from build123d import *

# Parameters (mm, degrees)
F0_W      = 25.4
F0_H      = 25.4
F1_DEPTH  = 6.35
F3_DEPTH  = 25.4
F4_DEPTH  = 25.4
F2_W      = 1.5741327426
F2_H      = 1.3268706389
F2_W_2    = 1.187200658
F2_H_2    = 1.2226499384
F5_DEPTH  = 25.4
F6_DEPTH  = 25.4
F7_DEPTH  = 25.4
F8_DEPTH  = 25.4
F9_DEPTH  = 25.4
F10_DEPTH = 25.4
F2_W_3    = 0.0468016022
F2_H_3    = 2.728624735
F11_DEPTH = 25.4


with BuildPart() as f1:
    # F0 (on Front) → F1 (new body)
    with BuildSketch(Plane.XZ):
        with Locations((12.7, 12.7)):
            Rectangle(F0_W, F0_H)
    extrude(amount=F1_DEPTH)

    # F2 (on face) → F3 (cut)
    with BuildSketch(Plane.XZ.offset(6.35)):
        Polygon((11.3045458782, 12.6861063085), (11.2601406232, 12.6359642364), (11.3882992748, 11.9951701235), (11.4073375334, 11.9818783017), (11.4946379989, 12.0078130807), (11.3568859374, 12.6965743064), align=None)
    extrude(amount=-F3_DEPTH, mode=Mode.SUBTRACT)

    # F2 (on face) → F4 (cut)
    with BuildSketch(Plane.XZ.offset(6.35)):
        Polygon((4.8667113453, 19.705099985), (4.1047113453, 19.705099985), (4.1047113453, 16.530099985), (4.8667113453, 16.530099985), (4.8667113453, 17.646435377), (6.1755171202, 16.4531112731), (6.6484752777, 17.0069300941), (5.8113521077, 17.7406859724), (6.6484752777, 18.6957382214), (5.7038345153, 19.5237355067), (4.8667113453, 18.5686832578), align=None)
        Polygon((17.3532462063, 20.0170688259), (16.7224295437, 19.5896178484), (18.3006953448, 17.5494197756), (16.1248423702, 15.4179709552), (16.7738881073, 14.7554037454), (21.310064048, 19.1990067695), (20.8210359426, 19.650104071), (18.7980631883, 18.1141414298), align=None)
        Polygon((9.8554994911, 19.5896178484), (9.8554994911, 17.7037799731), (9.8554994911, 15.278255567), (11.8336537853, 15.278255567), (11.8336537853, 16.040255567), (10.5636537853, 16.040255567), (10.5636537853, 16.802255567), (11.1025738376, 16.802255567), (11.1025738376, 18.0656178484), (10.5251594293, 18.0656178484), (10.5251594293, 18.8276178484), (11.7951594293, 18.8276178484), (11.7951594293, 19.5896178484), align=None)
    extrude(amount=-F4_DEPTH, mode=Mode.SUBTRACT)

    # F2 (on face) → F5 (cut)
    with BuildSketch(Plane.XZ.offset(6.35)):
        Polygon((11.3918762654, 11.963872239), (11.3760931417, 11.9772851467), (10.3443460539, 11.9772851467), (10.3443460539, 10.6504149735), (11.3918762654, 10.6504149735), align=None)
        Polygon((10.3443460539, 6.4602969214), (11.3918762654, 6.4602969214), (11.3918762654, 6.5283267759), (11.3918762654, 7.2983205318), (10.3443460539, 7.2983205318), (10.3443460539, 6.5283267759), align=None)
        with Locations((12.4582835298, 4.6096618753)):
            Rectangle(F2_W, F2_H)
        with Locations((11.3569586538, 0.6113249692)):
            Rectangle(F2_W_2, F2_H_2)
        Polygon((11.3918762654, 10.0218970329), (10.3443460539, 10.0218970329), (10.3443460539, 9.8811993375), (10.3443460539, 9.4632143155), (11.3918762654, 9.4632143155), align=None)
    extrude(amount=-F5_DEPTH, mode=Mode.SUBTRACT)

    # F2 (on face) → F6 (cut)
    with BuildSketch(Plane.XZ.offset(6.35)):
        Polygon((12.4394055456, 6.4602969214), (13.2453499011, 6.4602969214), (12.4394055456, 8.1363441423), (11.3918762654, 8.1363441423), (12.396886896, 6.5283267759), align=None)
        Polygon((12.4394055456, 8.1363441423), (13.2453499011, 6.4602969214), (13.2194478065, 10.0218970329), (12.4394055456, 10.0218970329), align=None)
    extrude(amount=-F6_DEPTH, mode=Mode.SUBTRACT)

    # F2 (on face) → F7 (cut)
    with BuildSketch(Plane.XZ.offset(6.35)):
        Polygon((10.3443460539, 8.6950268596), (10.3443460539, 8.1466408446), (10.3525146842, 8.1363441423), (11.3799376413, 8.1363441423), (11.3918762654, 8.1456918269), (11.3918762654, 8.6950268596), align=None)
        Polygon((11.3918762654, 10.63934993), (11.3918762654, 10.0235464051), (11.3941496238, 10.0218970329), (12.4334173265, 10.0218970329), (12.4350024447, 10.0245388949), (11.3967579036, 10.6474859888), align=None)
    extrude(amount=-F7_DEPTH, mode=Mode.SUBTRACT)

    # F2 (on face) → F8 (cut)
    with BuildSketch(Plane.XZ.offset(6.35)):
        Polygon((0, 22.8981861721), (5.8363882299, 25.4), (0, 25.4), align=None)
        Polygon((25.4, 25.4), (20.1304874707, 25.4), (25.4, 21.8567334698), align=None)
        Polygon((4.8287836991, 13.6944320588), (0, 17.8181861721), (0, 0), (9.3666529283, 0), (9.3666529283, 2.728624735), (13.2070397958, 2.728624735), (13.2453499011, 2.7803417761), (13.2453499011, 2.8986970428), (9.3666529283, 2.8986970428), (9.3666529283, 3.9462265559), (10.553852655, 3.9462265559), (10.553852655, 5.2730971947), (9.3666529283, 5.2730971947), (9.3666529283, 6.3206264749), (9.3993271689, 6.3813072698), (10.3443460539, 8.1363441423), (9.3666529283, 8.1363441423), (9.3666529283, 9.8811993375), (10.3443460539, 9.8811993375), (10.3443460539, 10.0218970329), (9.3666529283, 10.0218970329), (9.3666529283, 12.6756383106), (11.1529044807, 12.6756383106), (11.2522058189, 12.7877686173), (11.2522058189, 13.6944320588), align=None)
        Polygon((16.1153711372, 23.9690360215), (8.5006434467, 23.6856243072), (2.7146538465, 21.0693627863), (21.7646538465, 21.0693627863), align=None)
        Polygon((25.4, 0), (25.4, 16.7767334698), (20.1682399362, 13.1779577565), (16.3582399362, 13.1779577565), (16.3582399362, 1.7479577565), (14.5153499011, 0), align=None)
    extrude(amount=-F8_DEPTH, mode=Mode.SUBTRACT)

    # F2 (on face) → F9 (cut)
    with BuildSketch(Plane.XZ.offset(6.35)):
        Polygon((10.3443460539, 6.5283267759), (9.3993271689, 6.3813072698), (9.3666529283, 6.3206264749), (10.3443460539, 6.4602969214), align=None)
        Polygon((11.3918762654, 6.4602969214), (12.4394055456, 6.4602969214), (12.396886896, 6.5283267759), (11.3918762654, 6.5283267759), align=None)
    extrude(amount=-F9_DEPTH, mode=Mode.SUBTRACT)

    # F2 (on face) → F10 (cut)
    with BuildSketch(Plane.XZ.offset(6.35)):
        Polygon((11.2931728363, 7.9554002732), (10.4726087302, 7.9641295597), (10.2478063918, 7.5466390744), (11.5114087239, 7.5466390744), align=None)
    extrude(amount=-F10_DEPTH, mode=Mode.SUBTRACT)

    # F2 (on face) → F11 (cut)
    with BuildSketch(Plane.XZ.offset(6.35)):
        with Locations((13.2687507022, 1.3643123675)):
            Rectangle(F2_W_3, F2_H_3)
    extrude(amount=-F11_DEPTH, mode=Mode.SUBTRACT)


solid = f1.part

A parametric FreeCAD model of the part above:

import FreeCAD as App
import Part
import Sketcher

V = App.Vector
Q = App.Units.Quantity

doc = App.newDocument("Part")
params = doc.addObject("Spreadsheet::Sheet", "Params")
for row, (alias, value) in enumerate([
    ("sketch1_width", "1 in"),
    ("pad1_length", "0.25 in"),
    ("pocket1_length", "1 in"),
    ("sketch3_length", "0.1 in"),
    ("sketch3_width", "0.03 in"),
    ("sketch3_width2", "0.03 in"),
    ("sketch3_width3", "0.05 in"),
    ("sketch3_width4", "0.05 in"),
    ("pocket2_length", "1 in"),
    ("pocket3_length", "1 in"),
    ("pocket4_length", "1 in"),
    ("pocket5_length", "1 in"),
    ("sketch7_length", "0.3 in"),
    ("sketch7_length2", "0.1 in"),
    ("sketch7_width", "0.75 in"),
    ("sketch7_width2", "0.15 in"),
    ("sketch7_height", "0.45 in"),
    ("pocket6_length", "1 in"),
    ("pocket7_length", "1 in"),
    ("pocket8_length", "1 in"),
    ("pocket9_length", "1 in"),
], start=1):
    params.set(f"A{row}", alias)
    params.set(f"B{row}", "=" + value)
    params.setAlias(f"B{row}", alias)

body = doc.addObject("PartDesign::Body", "Body")

sketch1 = body.newObject("Sketcher::SketchObject", "Sketch")
sketch1.AttachmentSupport = (doc.getObject("XZ_Plane"), [""])
sketch1.MapMode = "FlatFace"
sketch1.addGeometry([
    Part.LineSegment(V(0, 25, 0), V(0, 0, 0)),
    Part.LineSegment(V(0, 0, 0), V(25, 0, 0)),
    Part.LineSegment(V(25, 0, 0), V(25, 25, 0)),
    Part.LineSegment(V(25, 25, 0), V(0, 25, 0)),
], False)
sketch1.addConstraint([
    Sketcher.Constraint("Coincident", 0, 2, 1, 1),
    Sketcher.Constraint("Coincident", 1, 2, 2, 1),
    Sketcher.Constraint("Coincident", 2, 2, 3, 1),
    Sketcher.Constraint("Coincident", 3, 2, 0, 1),
    Sketcher.Constraint("Vertical", 0),
    Sketcher.Constraint("Horizontal", 1),
    Sketcher.Constraint("Vertical", 2),
    Sketcher.Constraint("Horizontal", 3),
    Sketcher.Constraint("Coincident", 0, 2, -1, 1),
    Sketcher.Constraint("Equal", 3, 0),
    Sketcher.Constraint("DistanceX", 1, 1, 1, 2, Q("1 in")),
])
sketch1.setExpression("Constraints[10]", "Params.sketch1_width")
pad1 = body.newObject("PartDesign::Pad", "Pad")
pad1.Profile = sketch1
pad1.setExpression("Length", "Params.pad1_length")

sketch2 = body.newObject("Sketcher::SketchObject", "Sketch001")
sketch2.AttachmentSupport = (doc.getObject("XZ_Plane"), [""])
sketch2.MapMode = "FlatFace"
sketch2.AttachmentOffset = App.Placement(V(0, 0, 0.25 * 25.4), App.Rotation())
sketch2.addGeometry([
    Part.LineSegment(V(11.305, 12.686, 0), V(11.26, 12.636, 0)),
    Part.LineSegment(V(11.26, 12.636, 0), V(11.388, 11.995, 0)),
    Part.LineSegment(V(11.388, 11.995, 0), V(11.407, 11.982, 0)),
    Part.LineSegment(V(11.407, 11.982, 0), V(11.495, 12.008, 0)),
    Part.LineSegment(V(11.495, 12.008, 0), V(11.357, 12.697, 0)),
    Part.LineSegment(V(11.357, 12.697, 0), V(11.305, 12.686, 0)),
], False)
sketch2.addConstraint([
    Sketcher.Constraint("Coincident", 0, 2, 1, 1),
    Sketcher.Constraint("Coincident", 1, 2, 2, 1),
    Sketcher.Constraint("Coincident", 2, 2, 3, 1),
    Sketcher.Constraint("Coincident", 3, 2, 4, 1),
    Sketcher.Constraint("Coincident", 4, 2, 5, 1),
    Sketcher.Constraint("Coincident", 5, 2, 0, 1),
    Sketcher.Constraint("Parallel", 1, 4),
    Sketcher.Constraint("Perpendicular", 4, 5),
    Sketcher.Constraint("Distance", 4, Q("0.702401 mm")),
    Sketcher.Constraint("DistanceX", -1, 1, 1, 2, Q("11.388299 mm")),
    Sketcher.Constraint("DistanceX", 2, 2, 3, 2, Q("0.0873 mm")),
    Sketcher.Constraint("Distance", 0, Q("0.066978 mm")),
    Sketcher.Constraint("Distance", 2, Q("0.023219 mm")),
    Sketcher.Constraint("Distance", 3, Q("0.091071 mm")),
    Sketcher.Constraint("DistanceX", -1, 1, 0, 2, Q("11.260141 mm")),
    Sketcher.Constraint("DistanceY", -1, 1, 1, 2, Q("11.99517 mm")),
    Sketcher.Constraint("DistanceY", -1, 1, 2, 2, Q("11.981878 mm")),
    Sketcher.Constraint("DistanceY", 3, 2, 0, 2, Q("0.628151 mm")),
])
pocket1 = body.newObject("PartDesign::Pocket", "Pocket")
pocket1.Profile = sketch2
pocket1.setExpression("Length", "Params.pocket1_length")

sketch3 = body.newObject("Sketcher::SketchObject", "Sketch002")
sketch3.AttachmentSupport = (doc.getObject("XZ_Plane"), [""])
sketch3.MapMode = "FlatFace"
sketch3.AttachmentOffset = App.Placement(V(0, 0, 0.25 * 25.4), App.Rotation())
sketch3.addGeometry([
    Part.LineSegment(V(4.866711, 19.7051, 0), V(4.104711, 19.7051, 0)),
    Part.LineSegment(V(4.104711, 19.7051, 0), V(4.104711, 16.5301, 0)),
    Part.LineSegment(V(4.104711, 16.5301, 0), V(4.866711, 16.5301, 0)),
    Part.LineSegment(V(4.866711, 16.5301, 0), V(4.866711, 17.646435, 0)),
    Part.LineSegment(V(4.866711, 17.646435, 0), V(6.175517, 16.453111, 0)),
    Part.LineSegment(V(6.175517, 16.453111, 0), V(6.648475, 17.00693, 0)),
    Part.LineSegment(V(6.648475, 17.00693, 0), V(5.811352, 17.740686, 0)),
    Part.LineSegment(V(5.811352, 17.740686, 0), V(6.648475, 18.695738, 0)),
    Part.LineSegment(V(6.648475, 18.695738, 0), V(5.703835, 19.523736, 0)),
    Part.LineSegment(V(5.703835, 19.523736, 0), V(4.866711, 18.568683, 0)),
    Part.LineSegment(V(4.866711, 18.568683, 0), V(4.866711, 19.7051, 0)),
    Part.LineSegment(V(17.353246, 20.017069, 0), V(16.72243, 19.589618, 0)),
    Part.LineSegment(V(16.72243, 19.589618, 0), V(18.300695, 17.54942, 0)),
    Part.LineSegment(V(18.300695, 17.54942, 0), V(16.124842, 15.417971, 0)),
    Part.LineSegment(V(16.124842, 15.417971, 0), V(16.773888, 14.755404, 0)),
    Part.LineSegment(V(16.773888, 14.755404, 0), V(21.310064, 19.199007, 0)),
    Part.LineSegment(V(21.310064, 19.199007, 0), V(20.821036, 19.650104, 0)),
    Part.LineSegment(V(20.821036, 19.650104, 0), V(18.798063, 18.114141, 0)),
    Part.LineSegment(V(18.798063, 18.114141, 0), V(17.353246, 20.017069, 0)),
    Part.LineSegment(V(9.855499, 19.589618, 0), V(9.855499, 15.278256, 0)),
    Part.LineSegment(V(9.855499, 15.278256, 0), V(11.833654, 15.278256, 0)),
    Part.LineSegment(V(11.833654, 15.278256, 0), V(11.833654, 16.040256, 0)),
    Part.LineSegment(V(11.833654, 16.040256, 0), V(10.563654, 16.040256, 0)),
    Part.LineSegment(V(10.563654, 16.040256, 0), V(10.563654, 16.802256, 0)),
    Part.LineSegment(V(10.563654, 16.802256, 0), V(11.102574, 16.802256, 0)),
    Part.LineSegment(V(11.102574, 16.802256, 0), V(11.102574, 18.065618, 0)),
    Part.LineSegment(V(11.102574, 18.065618, 0), V(10.525159, 18.065618, 0)),
    Part.LineSegment(V(10.525159, 18.065618, 0), V(10.525159, 18.827618, 0)),
    Part.LineSegment(V(10.525159, 18.827618, 0), V(11.795159, 18.827618, 0)),
    Part.LineSegment(V(11.795159, 18.827618, 0), V(11.795159, 19.589618, 0)),
    Part.LineSegment(V(11.795159, 19.589618, 0), V(9.855499, 19.589618, 0)),
], False)
sketch3.addConstraint([
    Sketcher.Constraint("Coincident", 0, 2, 1, 1),
    Sketcher.Constraint("Coincident", 1, 2, 2, 1),
    Sketcher.Constraint("Coincident", 2, 2, 3, 1),
    Sketcher.Constraint("Coincident", 3, 2, 4, 1),
    Sketcher.Constraint("Coincident", 4, 2, 5, 1),
    Sketcher.Constraint("Coincident", 5, 2, 6, 1),
    Sketcher.Constraint("Coincident", 6, 2, 7, 1),
    Sketcher.Constraint("Coincident", 7, 2, 8, 1),
    Sketcher.Constraint("Coincident", 8, 2, 9, 1),
    Sketcher.Constraint("Coincident", 9, 2, 10, 1),
    Sketcher.Constraint("Coincident", 10, 2, 0, 1),
    Sketcher.Constraint("Coincident", 11, 2, 12, 1),
    Sketcher.Constraint("Coincident", 12, 2, 13, 1),
    Sketcher.Constraint("Coincident", 13, 2, 14, 1),
    Sketcher.Constraint("Coincident", 14, 2, 15, 1),
    Sketcher.Constraint("Coincident", 15, 2, 16, 1),
    Sketcher.Constraint("Coincident", 16, 2, 17, 1),
    Sketcher.Constraint("Coincident", 17, 2, 18, 1),
    Sketcher.Constraint("Coincident", 18, 2, 11, 1),
    Sketcher.Constraint("Coincident", 19, 2, 20, 1),
    Sketcher.Constraint("Coincident", 20, 2, 21, 1),
    Sketcher.Constraint("Coincident", 21, 2, 22, 1),
    Sketcher.Constraint("Coincident", 22, 2, 23, 1),
    Sketcher.Constraint("Coincident", 23, 2, 24, 1),
    Sketcher.Constraint("Coincident", 24, 2, 25, 1),
    Sketcher.Constraint("Coincident", 25, 2, 26, 1),
    Sketcher.Constraint("Coincident", 26, 2, 27, 1),
    Sketcher.Constraint("Coincident", 27, 2, 28, 1),
    Sketcher.Constraint("Coincident", 28, 2, 29, 1),
    Sketcher.Constraint("Coincident", 29, 2, 30, 1),
    Sketcher.Constraint("Coincident", 30, 2, 19, 1),
    Sketcher.Constraint("Horizontal", 0),
    Sketcher.Constraint("Vertical", 1),
    Sketcher.Constraint("Horizontal", 2),
    Sketcher.Constraint("Vertical", 3),
    Sketcher.Constraint("Vertical", 10),
    Sketcher.Constraint("Vertical", 19),
    Sketcher.Constraint("Horizontal", 20),
    Sketcher.Constraint("Vertical", 21),
    Sketcher.Constraint("Horizontal", 22),
    Sketcher.Constraint("Vertical", 23),
    Sketcher.Constraint("Horizontal", 24),
    Sketcher.Constraint("Vertical", 25),
    Sketcher.Constraint("Horizontal", 26),
    Sketcher.Constraint("Vertical", 27),
    Sketcher.Constraint("Horizontal", 28),
    Sketcher.Constraint("Vertical", 29),
    Sketcher.Constraint("Horizontal", 30),
    Sketcher.Constraint("Distance", 17, Q("0.1 in")),
    Sketcher.Constraint("DistanceX", 0, 2, 0, 1, Q("0.03 in")),
    Sketcher.Constraint("DistanceX", 2, 1, 2, 2, Q("0.03 in")),
    Sketcher.Constraint("DistanceX", 22, 2, 22, 1, Q("0.05 in")),
    Sketcher.Constraint("DistanceX", 28, 1, 28, 2, Q("0.05 in")),
    Sketcher.Constraint("DistanceY", 21, 1, 21, 2, Q("0.03 in")),
    Sketcher.Constraint("DistanceY", 23, 1, 23, 2, Q("0.03 in")),
    Sketcher.Constraint("DistanceY", 27, 1, 27, 2, Q("0.03 in")),
    Sketcher.Constraint("DistanceY", 29, 1, 29, 2, Q("0.03 in")),
    Sketcher.Constraint("Distance", 7, Q("0.05 in")),
    Sketcher.Constraint("Distance", 9, Q("0.05 in")),
    Sketcher.Constraint("Distance", 11, Q("0.03 in")),
    Sketcher.Constraint("Distance", 15, Q("0.25 in")),
    Sketcher.Constraint("DistanceY", 1, 2, 1, 1, Q("0.125 in")),
    Sketcher.Constraint("DistanceX", -1, 1, 12, 2, Q("0.7204998 in")),
    Sketcher.Constraint("Distance", 14, Q("0.9275 mm")),
    Sketcher.Constraint("DistanceX", 24, 1, 24, 2, Q("0.53892 mm")),
    Sketcher.Constraint("DistanceX", 30, 2, 30, 1, Q("1.93966 mm")),
    Sketcher.Constraint("DistanceY", -1, 1, 0, 2, Q("19.7051 mm")),
    Sketcher.Constraint("DistanceX", -1, 1, 19, 2, Q("9.855499 mm")),
    Sketcher.Constraint("DistanceY", 3, 2, 8, 2, Q("1.8773 mm")),
    Sketcher.Constraint("DistanceY", 12, 2, 11, 2, Q("2.040198 mm")),
    Sketcher.Constraint("DistanceY", 14, 2, 16, 2, Q("4.8947 mm")),
    Sketcher.Constraint("DistanceX", 17, 2, 15, 2, Q("2.512001 mm")),
    Sketcher.Constraint("Distance", 5, Q("0.728289 mm")),
    Sketcher.Constraint("Distance", 6, Q("1.113181 mm")),
    Sketcher.Constraint("Distance", 16, Q("0.66531 mm")),
    Sketcher.Constraint("DistanceX", 20, 1, 20, 2, Q("1.978154 mm")),
    Sketcher.Constraint("DistanceY", 3, 1, 3, 2, Q("1.116335 mm")),
    Sketcher.Constraint("DistanceY", 10, 1, 10, 2, Q("1.136417 mm")),
    Sketcher.Constraint("DistanceY", 19, 2, 19, 1, Q("4.311362 mm")),
    Sketcher.Constraint("DistanceX", -1, 1, 0, 2, Q("4.104711 mm")),
    Sketcher.Constraint("DistanceY", -1, 1, 4, 2, Q("16.453111 mm")),
    Sketcher.Constraint("DistanceY", -1, 1, 5, 2, Q("17.00693 mm")),
    Sketcher.Constraint("DistanceY", -1, 1, 7, 2, Q("18.695738 mm")),
    Sketcher.Constraint("DistanceX", -1, 1, 11, 2, Q("16.72243 mm")),
    Sketcher.Constraint("DistanceY", -1, 1, 12, 2, Q("17.54942 mm")),
    Sketcher.Constraint("DistanceY", -1, 1, 13, 2, Q("15.417971 mm")),
    Sketcher.Constraint("DistanceX", -1, 1, 14, 2, Q("16.773888 mm")),
    Sketcher.Constraint("DistanceY", -1, 1, 17, 2, Q("18.114141 mm")),
    Sketcher.Constraint("DistanceY", -1, 1, 18, 2, Q("20.017069 mm")),
    Sketcher.Constraint("DistanceX", 3, 2, 6, 2, Q("0.944641 mm")),
    Sketcher.Constraint("DistanceY", 3, 2, 6, 2, Q("0.094251 mm")),
    Sketcher.Constraint("DistanceX", 12, 2, 15, 2, Q("3.009369 mm")),
    Sketcher.Constraint("DistanceY", 19, 2, 6, 2, Q("2.46243 mm")),
])
sketch3.setExpression("Constraints[48]", "Params.sketch3_length")
sketch3.setExpression("Constraints[49]", "Params.sketch3_width")
sketch3.setExpression("Constraints[50]", "Params.sketch3_width2")
sketch3.setExpression("Constraints[51]", "Params.sketch3_width3")
sketch3.setExpression("Constraints[52]", "Params.sketch3_width4")
pocket2 = body.newObject("PartDesign::Pocket", "Pocket001")
pocket2.Profile = sketch3
pocket2.setExpression("Length", "Params.pocket2_length")

sketch4 = body.newObject("Sketcher::SketchObject", "Sketch003")
sketch4.AttachmentSupport = (doc.getObject("XZ_Plane"), [""])
sketch4.MapMode = "FlatFace"
sketch4.AttachmentOffset = App.Placement(V(0, 0, 0.25 * 25.4), App.Rotation())
sketch4.addGeometry([
    Part.LineSegment(V(11.392, 11.964, 0), V(11.376, 11.977, 0)),
    Part.LineSegment(V(11.376, 11.977, 0), V(10.344, 11.977, 0)),
    Part.LineSegment(V(10.344, 11.977, 0), V(10.344, 10.65, 0)),
    Part.LineSegment(V(10.344, 10.65, 0), V(11.392, 10.65, 0)),
    Part.LineSegment(V(11.392, 10.65, 0), V(11.392, 11.964, 0)),
    Part.LineSegment(V(10.344, 6.46, 0), V(11.392, 6.46, 0)),
    Part.LineSegment(V(11.392, 6.46, 0), V(11.392, 7.298, 0)),
    Part.LineSegment(V(11.392, 7.298, 0), V(10.344, 7.298, 0)),
    Part.LineSegment(V(10.344, 7.298, 0), V(10.344, 6.46, 0)),
    Part.LineSegment(V(11.671, 5.273, 0), V(11.671, 3.946, 0)),
    Part.LineSegment(V(11.671, 3.946, 0), V(13.245, 3.946, 0)),
    Part.LineSegment(V(13.245, 3.946, 0), V(13.245, 5.273, 0)),
    Part.LineSegment(V(13.245, 5.273, 0), V(11.671, 5.273, 0)),
    Part.LineSegment(V(10.763, 1.223, 0), V(10.763, 0, 0)),
    Part.LineSegment(V(10.763, 0, 0), V(11.951, 0, 0)),
    Part.LineSegment(V(11.951, 0, 0), V(11.951, 1.223, 0)),
    Part.LineSegment(V(11.951, 1.223, 0), V(10.763, 1.223, 0)),
    Part.LineSegment(V(11.392, 10.022, 0), V(10.344, 10.022, 0)),
    Part.LineSegment(V(10.344, 10.022, 0), V(10.344, 9.463, 0)),
    Part.LineSegment(V(10.344, 9.463, 0), V(11.392, 9.463, 0)),
    Part.LineSegment(V(11.392, 9.463, 0), V(11.392, 10.022, 0)),
], False)
sketch4.addConstraint([
    Sketcher.Constraint("Coincident", 0, 2, 1, 1),
    Sketcher.Constraint("Coincident", 1, 2, 2, 1),
    Sketcher.Constraint("Coincident", 2, 2, 3, 1),
    Sketcher.Constraint("Coincident", 3, 2, 4, 1),
    Sketcher.Constraint("Coincident", 4, 2, 0, 1),
    Sketcher.Constraint("Coincident", 5, 2, 6, 1),
    Sketcher.Constraint("Coincident", 6, 2, 7, 1),
    Sketcher.Constraint("Coincident", 7, 2, 8, 1),
    Sketcher.Constraint("Coincident", 8, 2, 5, 1),
    Sketcher.Constraint("Coincident", 9, 2, 10, 1),
    Sketcher.Constraint("Coincident", 10, 2, 11, 1),
    Sketcher.Constraint("Coincident", 11, 2, 12, 1),
    Sketcher.Constraint("Coincident", 12, 2, 9, 1),
    Sketcher.Constraint("Coincident", 13, 2, 14, 1),
    Sketcher.Constraint("Coincident", 14, 2, 15, 1),
    Sketcher.Constraint("Coincident", 15, 2, 16, 1),
    Sketcher.Constraint("Coincident", 16, 2, 13, 1),
    Sketcher.Constraint("Coincident", 17, 2, 18, 1),
    Sketcher.Constraint("Coincident", 18, 2, 19, 1),
    Sketcher.Constraint("Coincident", 19, 2, 20, 1),
    Sketcher.Constraint("Coincident", 20, 2, 17, 1),
    Sketcher.Constraint("Horizontal", 1),
    Sketcher.Constraint("Vertical", 2),
    Sketcher.Constraint("Horizontal", 3),
    Sketcher.Constraint("Vertical", 4),
    Sketcher.Constraint("Horizontal", 5),
    Sketcher.Constraint("Vertical", 6),
    Sketcher.Constraint("Horizontal", 7),
    Sketcher.Constraint("Vertical", 8),
    Sketcher.Constraint("Vertical", 9),
    Sketcher.Constraint("Horizontal", 10),
    Sketcher.Constraint("Vertical", 11),
    Sketcher.Constraint("Horizontal", 12),
    Sketcher.Constraint("Vertical", 13),
    Sketcher.Constraint("Horizontal", 14),
    Sketcher.Constraint("Vertical", 15),
    Sketcher.Constraint("Horizontal", 16),
    Sketcher.Constraint("Horizontal", 17),
    Sketcher.Constraint("Vertical", 18),
    Sketcher.Constraint("Horizontal", 19),
    Sketcher.Constraint("Vertical", 20),
    Sketcher.Constraint("PointOnObject", 13, 2, -1),
    Sketcher.Constraint("Vertical", 4, 2, 5, 2),
    Sketcher.Constraint("Vertical", 2, 2, 7, 2),
    Sketcher.Constraint("Vertical", 8, 2, 17, 2),
    Sketcher.Constraint("Vertical", 6, 2, 19, 2),
    Sketcher.Constraint("Equal", 2, 9),
    Sketcher.Constraint("DistanceX", 14, 1, 14, 2, Q("1.187201 mm")),
    Sketcher.Constraint("DistanceX", 3, 1, 3, 2, Q("1.04753 mm")),
    Sketcher.Constraint("DistanceY", 2, 2, 2, 1, Q("1.32687 mm")),
    Sketcher.Constraint("DistanceY", 13, 2, 13, 1, Q("1.22265 mm")),
    Sketcher.Constraint("DistanceY", 11, 2, 5, 2, Q("1.1872 mm")),
    Sketcher.Constraint("DistanceY", 18, 2, 2, 2, Q("1.187201 mm")),
    Sketcher.Constraint("DistanceX", 1, 2, 1, 1, Q("1.031747 mm")),
    Sketcher.Constraint("DistanceX", 10, 1, 10, 2, Q("1.574133 mm")),
    Sketcher.Constraint("DistanceY", 4, 1, 4, 2, Q("1.313457 mm")),
    Sketcher.Constraint("DistanceY", 6, 1, 6, 2, Q("0.838024 mm")),
    Sketcher.Constraint("DistanceY", 18, 2, 18, 1, Q("0.558683 mm")),
    Sketcher.Constraint("DistanceY", -1, 1, 6, 2, Q("7.298321 mm")),
    Sketcher.Constraint("DistanceX", -1, 1, 10, 2, Q("13.24535 mm")),
    Sketcher.Constraint("DistanceX", -1, 1, 13, 2, Q("10.763358 mm")),
    Sketcher.Constraint("DistanceY", 5, 2, 3, 2, Q("4.190118 mm")),
    Sketcher.Constraint("DistanceX", 5, 2, 9, 2, Q("0.279341 mm")),
])
pocket3 = body.newObject("PartDesign::Pocket", "Pocket002")
pocket3.Profile = sketch4
pocket3.setExpression("Length", "Params.pocket3_length")

sketch5 = body.newObject("Sketcher::SketchObject", "Sketch004")
sketch5.AttachmentSupport = (doc.getObject("XZ_Plane"), [""])
sketch5.MapMode = "FlatFace"
sketch5.AttachmentOffset = App.Placement(V(0, 0, 0.25 * 25.4), App.Rotation())
sketch5.addGeometry([
    Part.LineSegment(V(12.44, 6.46, 0), V(13.25, 6.46, 0)),
    Part.LineSegment(V(13.25, 6.46, 0), V(13.22, 10.02, 0)),
    Part.LineSegment(V(13.22, 10.02, 0), V(12.44, 10.02, 0)),
    Part.LineSegment(V(12.44, 10.02, 0), V(12.44, 8.14, 0)),
    Part.LineSegment(V(12.44, 8.14, 0), V(11.39, 8.14, 0)),
    Part.LineSegment(V(11.39, 8.14, 0), V(12.4, 6.53, 0)),
    Part.LineSegment(V(12.4, 6.53, 0), V(12.44, 6.46, 0)),
], False)
sketch5.addConstraint([
    Sketcher.Constraint("Coincident", 0, 2, 1, 1),
    Sketcher.Constraint("Coincident", 1, 2, 2, 1),
    Sketcher.Constraint("Coincident", 2, 2, 3, 1),
    Sketcher.Constraint("Coincident", 3, 2, 4, 1),
    Sketcher.Constraint("Coincident", 4, 2, 5, 1),
    Sketcher.Constraint("Coincident", 5, 2, 6, 1),
    Sketcher.Constraint("Coincident", 6, 2, 0, 1),
    Sketcher.Constraint("Horizontal", 0),
    Sketcher.Constraint("Horizontal", 2),
    Sketcher.Constraint("Vertical", 3),
    Sketcher.Constraint("Horizontal", 4),
    Sketcher.Constraint("Parallel", 5, 6),
    Sketcher.Constraint("Vertical", 3, 2, 6, 2),
    Sketcher.Constraint("DistanceX", 4, 2, 4, 1, Q("1.047529 mm")),
    Sketcher.Constraint("DistanceY", 0, 2, 1, 2, Q("3.5616 mm")),
    Sketcher.Constraint("Distance", 5, Q("1.896251 mm")),
    Sketcher.Constraint("DistanceX", 0, 1, 0, 2, Q("0.805944 mm")),
    Sketcher.Constraint("DistanceX", 2, 2, 2, 1, Q("0.780042 mm")),
    Sketcher.Constraint("DistanceY", 3, 2, 3, 1, Q("1.885553 mm")),
    Sketcher.Constraint("DistanceX", -1, 1, 0, 2, Q("13.24535 mm")),
    Sketcher.Constraint("DistanceY", -1, 1, 0, 2, Q("6.460297 mm")),
])
pocket4 = body.newObject("PartDesign::Pocket", "Pocket003")
pocket4.Profile = sketch5
pocket4.setExpression("Length", "Params.pocket4_length")

sketch6 = body.newObject("Sketcher::SketchObject", "Sketch005")
sketch6.AttachmentSupport = (doc.getObject("XZ_Plane"), [""])
sketch6.MapMode = "FlatFace"
sketch6.AttachmentOffset = App.Placement(V(0, 0, 0.25 * 25.4), App.Rotation())
sketch6.addGeometry([
    Part.LineSegment(V(10.3443, 8.695, 0), V(10.3443, 8.1466, 0)),
    Part.LineSegment(V(10.3443, 8.1466, 0), V(10.3525, 8.1363, 0)),
    Part.LineSegment(V(10.3525, 8.1363, 0), V(11.3799, 8.1363, 0)),
    Part.LineSegment(V(11.3799, 8.1363, 0), V(11.3919, 8.1457, 0)),
    Part.LineSegment(V(11.3919, 8.1457, 0), V(11.3919, 8.695, 0)),
    Part.LineSegment(V(11.3919, 8.695, 0), V(10.3443, 8.695, 0)),
    Part.LineSegment(V(11.3919, 10.6393, 0), V(11.3919, 10.0235, 0)),
    Part.LineSegment(V(11.3919, 10.0235, 0), V(11.3941, 10.0219, 0)),
    Part.LineSegment(V(11.3941, 10.0219, 0), V(12.4334, 10.0219, 0)),
    Part.LineSegment(V(12.4334, 10.0219, 0), V(12.435, 10.0245, 0)),
    Part.LineSegment(V(12.435, 10.0245, 0), V(11.3968, 10.6475, 0)),
    Part.LineSegment(V(11.3968, 10.6475, 0), V(11.3919, 10.6393, 0)),
], False)
sketch6.addConstraint([
    Sketcher.Constraint("Coincident", 0, 2, 1, 1),
    Sketcher.Constraint("Coincident", 1, 2, 2, 1),
    Sketcher.Constraint("Coincident", 2, 2, 3, 1),
    Sketcher.Constraint("Coincident", 3, 2, 4, 1),
    Sketcher.Constraint("Coincident", 4, 2, 5, 1),
    Sketcher.Constraint("Coincident", 5, 2, 0, 1),
    Sketcher.Constraint("Coincident", 6, 2, 7, 1),
    Sketcher.Constraint("Coincident", 7, 2, 8, 1),
    Sketcher.Constraint("Coincident", 8, 2, 9, 1),
    Sketcher.Constraint("Coincident", 9, 2, 10, 1),
    Sketcher.Constraint("Coincident", 10, 2, 11, 1),
    Sketcher.Constraint("Coincident", 11, 2, 6, 1),
    Sketcher.Constraint("Vertical", 0),
    Sketcher.Constraint("Horizontal", 2),
    Sketcher.Constraint("Vertical", 4),
    Sketcher.Constraint("Horizontal", 5),
    Sketcher.Constraint("Vertical", 6),
    Sketcher.Constraint("Horizontal", 8),
    Sketcher.Constraint("Perpendicular", 9, 10),
    Sketcher.Constraint("Perpendicular", 10, 11),
    Sketcher.Constraint("Vertical", 4, 2, 6, 2),
    Sketcher.Constraint("DistanceX", 5, 2, 5, 1, Q("1.04753 mm")),
    Sketcher.Constraint("Distance", 7, Q("0.002809 mm")),
    Sketcher.Constraint("Distance", 9, Q("0.003081 mm")),
    Sketcher.Constraint("Distance", 10, Q("1.210791 mm")),
    Sketcher.Constraint("Distance", 11, Q("0.009488 mm")),
    Sketcher.Constraint("DistanceX", 2, 1, 2, 2, Q("1.027423 mm")),
    Sketcher.Constraint("DistanceX", 8, 1, 8, 2, Q("1.039268 mm")),
    Sketcher.Constraint("DistanceY", 0, 2, 0, 1, Q("0.548386 mm")),
    Sketcher.Constraint("DistanceY", 4, 1, 4, 2, Q("0.549335 mm")),
    Sketcher.Constraint("DistanceY", 6, 2, 6, 1, Q("0.615804 mm")),
    Sketcher.Constraint("DistanceY", -1, 1, 0, 2, Q("8.146641 mm")),
    Sketcher.Constraint("DistanceX", -1, 1, 7, 2, Q("11.39415 mm")),
    Sketcher.Constraint("DistanceY", -1, 1, 9, 2, Q("10.024539 mm")),
    Sketcher.Constraint("DistanceX", 0, 2, 1, 2, Q("0.008169 mm")),
    Sketcher.Constraint("Distance", 1, Q("0.013143 mm")),
])
pocket5 = body.newObject("PartDesign::Pocket", "Pocket004")
pocket5.Profile = sketch6
pocket5.setExpression("Length", "Params.pocket5_length")

sketch7 = body.newObject("Sketcher::SketchObject", "Sketch006")
sketch7.AttachmentSupport = (doc.getObject("XZ_Plane"), [""])
sketch7.MapMode = "FlatFace"
sketch7.AttachmentOffset = App.Placement(V(0, 0, 0.25 * 25.4), App.Rotation())
sketch7.addGeometry([
    Part.LineSegment(V(0, 22.9, 0), V(5.84, 25.4, 0)),
    Part.LineSegment(V(5.84, 25.4, 0), V(0, 25.4, 0)),
    Part.LineSegment(V(0, 25.4, 0), V(0, 22.9, 0)),
    Part.LineSegment(V(25.4, 25.4, 0), V(20.13, 25.4, 0)),
    Part.LineSegment(V(20.13, 25.4, 0), V(25.4, 21.86, 0)),
    Part.LineSegment(V(25.4, 21.86, 0), V(25.4, 25.4, 0)),
    Part.LineSegment(V(4.83, 13.69, 0), V(0, 17.82, 0)),
    Part.LineSegment(V(0, 17.82, 0), V(0, 0, 0)),
    Part.LineSegment(V(0, 0, 0), V(9.37, 0, 0)),
    Part.LineSegment(V(9.37, 0, 0), V(9.37, 2.73, 0)),
    Part.LineSegment(V(9.37, 2.73, 0), V(13.21, 2.73, 0)),
    Part.LineSegment(V(13.21, 2.73, 0), V(13.25, 2.78, 0)),
    Part.LineSegment(V(13.25, 2.78, 0), V(13.25, 2.9, 0)),
    Part.LineSegment(V(13.25, 2.9, 0), V(9.37, 2.9, 0)),
    Part.LineSegment(V(9.37, 2.9, 0), V(9.37, 3.95, 0)),
    Part.LineSegment(V(9.37, 3.95, 0), V(10.55, 3.95, 0)),
    Part.LineSegment(V(10.55, 3.95, 0), V(10.55, 5.27, 0)),
    Part.LineSegment(V(10.55, 5.27, 0), V(9.37, 5.27, 0)),
    Part.LineSegment(V(9.37, 5.27, 0), V(9.37, 6.32, 0)),
    Part.LineSegment(V(9.37, 6.32, 0), V(9.4, 6.38, 0)),
    Part.LineSegment(V(9.4, 6.38, 0), V(10.34, 8.14, 0)),
    Part.LineSegment(V(10.34, 8.14, 0), V(9.37, 8.14, 0)),
    Part.LineSegment(V(9.37, 8.14, 0), V(9.37, 9.88, 0)),
    Part.LineSegment(V(9.37, 9.88, 0), V(10.34, 9.88, 0)),
    Part.LineSegment(V(10.34, 9.88, 0), V(10.34, 10.02, 0)),
    Part.LineSegment(V(10.34, 10.02, 0), V(9.37, 10.02, 0)),
    Part.LineSegment(V(9.37, 10.02, 0), V(9.37, 12.68, 0)),
    Part.LineSegment(V(9.37, 12.68, 0), V(11.15, 12.68, 0)),
    Part.LineSegment(V(11.15, 12.68, 0), V(11.25, 12.79, 0)),
    Part.LineSegment(V(11.25, 12.79, 0), V(11.25, 13.69, 0)),
    Part.LineSegment(V(11.25, 13.69, 0), V(4.83, 13.69, 0)),
    Part.LineSegment(V(16.12, 23.97, 0), V(8.5, 23.69, 0)),
    Part.LineSegment(V(8.5, 23.69, 0), V(2.71, 21.07, 0)),
    Part.LineSegment(V(2.71, 21.07, 0), V(21.76, 21.07, 0)),
    Part.LineSegment(V(21.76, 21.07, 0), V(16.12, 23.97, 0)),
    Part.LineSegment(V(25.4, 0, 0), V(25.4, 16.78, 0)),
    Part.LineSegment(V(25.4, 16.78, 0), V(20.17, 13.18, 0)),
    Part.LineSegment(V(20.17, 13.18, 0), V(16.36, 13.18, 0)),
    Part.LineSegment(V(16.36, 13.18, 0), V(16.36, 1.75, 0)),
    Part.LineSegment(V(16.36, 1.75, 0), V(14.52, 0, 0)),
    Part.LineSegment(V(14.52, 0, 0), V(25.4, 0, 0)),
], False)
sketch7.addConstraint([
    Sketcher.Constraint("Coincident", 0, 2, 1, 1),
    Sketcher.Constraint("Coincident", 1, 2, 2, 1),
    Sketcher.Constraint("Coincident", 2, 2, 0, 1),
    Sketcher.Constraint("Coincident", 3, 2, 4, 1),
    Sketcher.Constraint("Coincident", 4, 2, 5, 1),
    Sketcher.Constraint("Coincident", 5, 2, 3, 1),
    Sketcher.Constraint("Coincident", 6, 2, 7, 1),
    Sketcher.Constraint("Coincident", 7, 2, 8, 1),
    Sketcher.Constraint("Coincident", 8, 2, 9, 1),
    Sketcher.Constraint("Coincident", 9, 2, 10, 1),
    Sketcher.Constraint("Coincident", 10, 2, 11, 1),
    Sketcher.Constraint("Coincident", 11, 2, 12, 1),
    Sketcher.Constraint("Coincident", 12, 2, 13, 1),
    Sketcher.Constraint("Coincident", 13, 2, 14, 1),
    Sketcher.Constraint("Coincident", 14, 2, 15, 1),
    Sketcher.Constraint("Coincident", 15, 2, 16, 1),
    Sketcher.Constraint("Coincident", 16, 2, 17, 1),
    Sketcher.Constraint("Coincident", 17, 2, 18, 1),
    Sketcher.Constraint("Coincident", 18, 2, 19, 1),
    Sketcher.Constraint("Coincident", 19, 2, 20, 1),
    Sketcher.Constraint("Coincident", 20, 2, 21, 1),
    Sketcher.Constraint("Coincident", 21, 2, 22, 1),
    Sketcher.Constraint("Coincident", 22, 2, 23, 1),
    Sketcher.Constraint("Coincident", 23, 2, 24, 1),
    Sketcher.Constraint("Coincident", 24, 2, 25, 1),
    Sketcher.Constraint("Coincident", 25, 2, 26, 1),
    Sketcher.Constraint("Coincident", 26, 2, 27, 1),
    Sketcher.Constraint("Coincident", 27, 2, 28, 1),
    Sketcher.Constraint("Coincident", 28, 2, 29, 1),
    Sketcher.Constraint("Coincident", 29, 2, 30, 1),
    Sketcher.Constraint("Coincident", 30, 2, 6, 1),
    Sketcher.Constraint("Coincident", 31, 2, 32, 1),
    Sketcher.Constraint("Coincident", 32, 2, 33, 1),
    Sketcher.Constraint("Coincident", 33, 2, 34, 1),
    Sketcher.Constraint("Coincident", 34, 2, 31, 1),
    Sketcher.Constraint("Coincident", 35, 2, 36, 1),
    Sketcher.Constraint("Coincident", 36, 2, 37, 1),
    Sketcher.Constraint("Coincident", 37, 2, 38, 1),
    Sketcher.Constraint("Coincident", 38, 2, 39, 1),
    Sketcher.Constraint("Coincident", 39, 2, 40, 1),
    Sketcher.Constraint("Coincident", 40, 2, 35, 1),
    Sketcher.Constraint("Horizontal", 1),
    Sketcher.Constraint("Vertical", 2),
    Sketcher.Constraint("Horizontal", 3),
    Sketcher.Constraint("Vertical", 5),
    Sketcher.Constraint("Vertical", 7),
    Sketcher.Constraint("Horizontal", 8),
    Sketcher.Constraint("Vertical", 9),
    Sketcher.Constraint("Horizontal", 10),
    Sketcher.Constraint("Vertical", 12),
    Sketcher.Constraint("Horizontal", 13),
    Sketcher.Constraint("Vertical", 14),
    Sketcher.Constraint("Horizontal", 15),
    Sketcher.Constraint("Vertical", 16),
    Sketcher.Constraint("Horizontal", 17),
    Sketcher.Constraint("Vertical", 18),
    Sketcher.Constraint("Horizontal", 21),
    Sketcher.Constraint("Vertical", 22),
    Sketcher.Constraint("Horizontal", 23),
    Sketcher.Constraint("Vertical", 24),
    Sketcher.Constraint("Horizontal", 25),
    Sketcher.Constraint("Vertical", 26),
    Sketcher.Constraint("Horizontal", 27),
    Sketcher.Constraint("Vertical", 29),
    Sketcher.Constraint("Horizontal", 30),
    Sketcher.Constraint("Horizontal", 33),
    Sketcher.Constraint("Vertical", 35),
    Sketcher.Constraint("Horizontal", 37),
    Sketcher.Constraint("Vertical", 38),
    Sketcher.Constraint("Horizontal", 40),
    Sketcher.Constraint("Coincident", 7, 2, -1, 1),
    Sketcher.Constraint("PointOnObject", 1, 2, -2),
    Sketcher.Constraint("PointOnObject", 39, 2, -1),
    Sketcher.Constraint("Parallel", 19, 20),
    Sketcher.Constraint("Horizontal", 1, 2, 3, 2),
    Sketcher.Constraint("Vertical", 9, 2, 13, 2),
    Sketcher.Constraint("Vertical", 14, 2, 17, 2),
    Sketcher.Constraint("Vertical", 18, 2, 21, 2),
    Sketcher.Constraint("Vertical", 20, 2, 23, 2),
    Sketcher.Constraint("Vertical", 22, 2, 25, 2),
    Sketcher.Constraint("Vertical", 5, 2, 35, 2),
    Sketcher.Constraint("Equal", 14, 18),
    Sketcher.Constraint("Equal", 0, 4),
    Sketcher.Constraint("Equal", 4, 6),
    Sketcher.Constraint("Equal", 6, 32),
    Sketcher.Constraint("Equal", 32, 34),
    Sketcher.Constraint("Equal", 34, 36),
    Sketcher.Constraint("DistanceY", -1, 1, 0, 2, Q("1 in")),
    Sketcher.Constraint("DistanceX", -1, 1, 4, 2, Q("1 in")),
    Sketcher.Constraint("Distance", 31, Q("0.3 in")),
    Sketcher.Constraint("Distance", 39, Q("0.1 in")),
    Sketcher.Constraint("DistanceX", 33, 1, 33, 2, Q("0.75 in")),
    Sketcher.Constraint("DistanceX", 37, 2, 37, 1, Q("0.15 in")),
    Sketcher.Constraint("DistanceY", 38, 2, 38, 1, Q("0.45 in")),
    Sketcher.Constraint("DistanceY", 6, 2, 2, 2, Q("0.2 in")),
    Sketcher.Constraint("DistanceY", 35, 2, 4, 2, Q("0.2 in")),
    Sketcher.Constraint("Distance", 0, Q("0.25 in")),
    Sketcher.Constraint("DistanceX", 11, 2, 39, 2, Q("0.05 in")),
    Sketcher.Constraint("DistanceX", 15, 1, 15, 2, Q("1.1872 mm")),
    Sketcher.Constraint("DistanceX", 1, 2, 1, 1, Q("5.836388 mm")),
    Sketcher.Constraint("DistanceX", 27, 1, 27, 2, Q("1.786252 mm")),
    Sketcher.Constraint("DistanceX", 40, 1, 40, 2, Q("10.88465 mm")),
    Sketcher.Constraint("DistanceY", 14, 1, 14, 2, Q("1.04753 mm")),
    Sketcher.Constraint("DistanceY", 16, 1, 16, 2, Q("1.326871 mm")),
    Sketcher.Constraint("DistanceY", 26, 1, 26, 2, Q("2.653741 mm")),
    Sketcher.Constraint("DistanceY", -1, 1, 22, 2, Q("9.881199 mm")),
    Sketcher.Constraint("DistanceX", 0, 2, 3, 2, Q("14.294099 mm")),
    Sketcher.Constraint("DistanceY", 9, 2, 14, 2, Q("1.217602 mm")),
    Sketcher.Constraint("DistanceX", 27, 2, 28, 2, Q("0.099301 mm")),
    Sketcher.Constraint("DistanceX", 10, 2, 38, 2, Q("3.1512 mm")),
    Sketcher.Constraint("Distance", 11, Q("0.064361 mm")),
    Sketcher.Constraint("Distance", 19, Q("0.068919 mm")),
    Sketcher.Constraint("Distance", 28, Q("0.14978 mm")),
    Sketcher.Constraint("DistanceX", 8, 1, 8, 2, Q("9.366653 mm")),
    Sketcher.Constraint("DistanceX", 21, 2, 21, 1, Q("0.977693 mm")),
    Sketcher.Constraint("DistanceX", 30, 2, 30, 1, Q("6.423422 mm")),
    Sketcher.Constraint("DistanceY", 9, 1, 9, 2, Q("2.728625 mm")),
    Sketcher.Constraint("DistanceY", 22, 1, 22, 2, Q("1.744855 mm")),
    Sketcher.Constraint("DistanceY", 24, 1, 24, 2, Q("0.140698 mm")),
    Sketcher.Constraint("DistanceX", -1, 1, 34, 2, Q("16.115371 mm")),
    Sketcher.Constraint("DistanceY", 2, 2, 31, 2, Q("0.787438 mm")),
    Sketcher.Constraint("DistanceX", 32, 2, 31, 2, Q("5.78599 mm")),
])
sketch7.setExpression("Constraints[89]", "Params.sketch7_length")
sketch7.setExpression("Constraints[90]", "Params.sketch7_length2")
sketch7.setExpression("Constraints[91]", "Params.sketch7_width")
sketch7.setExpression("Constraints[92]", "Params.sketch7_width2")
sketch7.setExpression("Constraints[93]", "Params.sketch7_height")
pocket6 = body.newObject("PartDesign::Pocket", "Pocket005")
pocket6.Profile = sketch7
pocket6.setExpression("Length", "Params.pocket6_length")

sketch8 = body.newObject("Sketcher::SketchObject", "Sketch007")
sketch8.AttachmentSupport = (doc.getObject("XZ_Plane"), [""])
sketch8.MapMode = "FlatFace"
sketch8.AttachmentOffset = App.Placement(V(0, 0, 0.25 * 25.4), App.Rotation())
sketch8.addGeometry([
    Part.LineSegment(V(10.34, 6.53, 0), V(9.4, 6.38, 0)),
    Part.LineSegment(V(9.4, 6.38, 0), V(9.37, 6.32, 0)),
    Part.LineSegment(V(9.37, 6.32, 0), V(10.34, 6.46, 0)),
    Part.LineSegment(V(10.34, 6.46, 0), V(10.34, 6.53, 0)),
    Part.LineSegment(V(11.39, 6.46, 0), V(12.44, 6.46, 0)),
    Part.LineSegment(V(12.44, 6.46, 0), V(12.4, 6.53, 0)),
    Part.LineSegment(V(12.4, 6.53, 0), V(11.39, 6.53, 0)),
    Part.LineSegment(V(11.39, 6.53, 0), V(11.39, 6.46, 0)),
], False)
sketch8.addConstraint([
    Sketcher.Constraint("Coincident", 0, 2, 1, 1),
    Sketcher.Constraint("Coincident", 1, 2, 2, 1),
    Sketcher.Constraint("Coincident", 2, 2, 3, 1),
    Sketcher.Constraint("Coincident", 3, 2, 0, 1),
    Sketcher.Constraint("Coincident", 4, 2, 5, 1),
    Sketcher.Constraint("Coincident", 5, 2, 6, 1),
    Sketcher.Constraint("Coincident", 6, 2, 7, 1),
    Sketcher.Constraint("Coincident", 7, 2, 4, 1),
    Sketcher.Constraint("Vertical", 3),
    Sketcher.Constraint("Horizontal", 4),
    Sketcher.Constraint("Horizontal", 6),
    Sketcher.Constraint("Vertical", 7),
    Sketcher.Constraint("Horizontal", 2, 2, 4, 2),
    Sketcher.Constraint("Horizontal", 3, 2, 5, 2),
    Sketcher.Constraint("DistanceX", 4, 1, 4, 2, Q("1.047529 mm")),
    Sketcher.Constraint("DistanceX", 6, 2, 6, 1, Q("1.005011 mm")),
    Sketcher.Constraint("DistanceY", 3, 1, 3, 2, Q("0.06803 mm")),
    Sketcher.Constraint("DistanceY", 1, 2, 3, 2, Q("0.2077 mm")),
    Sketcher.Constraint("Distance", 1, Q("0.068919 mm")),
    Sketcher.Constraint("Distance", 2, Q("0.987619 mm")),
    Sketcher.Constraint("DistanceY", 1, 2, 0, 2, Q("0.060681 mm")),
    Sketcher.Constraint("DistanceX", 2, 2, 4, 2, Q("2.095059 mm")),
    Sketcher.Constraint("DistanceX", -1, 1, 0, 2, Q("9.399327 mm")),
    Sketcher.Constraint("DistanceY", -1, 1, 0, 2, Q("6.381307 mm")),
])
pocket7 = body.newObject("PartDesign::Pocket", "Pocket006")
pocket7.Profile = sketch8
pocket7.setExpression("Length", "Params.pocket7_length")

sketch9 = body.newObject("Sketcher::SketchObject", "Sketch008")
sketch9.AttachmentSupport = (doc.getObject("XZ_Plane"), [""])
sketch9.MapMode = "FlatFace"
sketch9.AttachmentOffset = App.Placement(V(0, 0, 0.25 * 25.4), App.Rotation())
sketch9.addGeometry([
    Part.LineSegment(V(11.29, 7.96, 0), V(10.47, 7.96, 0)),
    Part.LineSegment(V(10.47, 7.96, 0), V(10.25, 7.55, 0)),
    Part.LineSegment(V(10.25, 7.55, 0), V(11.51, 7.55, 0)),
    Part.LineSegment(V(11.51, 7.55, 0), V(11.29, 7.96, 0)),
], False)
sketch9.addConstraint([
    Sketcher.Constraint("Coincident", 0, 2, 1, 1),
    Sketcher.Constraint("Coincident", 1, 2, 2, 1),
    Sketcher.Constraint("Coincident", 2, 2, 3, 1),
    Sketcher.Constraint("Coincident", 3, 2, 0, 1),
    Sketcher.Constraint("Horizontal", 2),
    Sketcher.Constraint("DistanceY", -1, 1, 3, 2, Q("7.9554 mm")),
    Sketcher.Constraint("DistanceX", 0, 2, 2, 2, Q("1.0388 mm")),
    Sketcher.Constraint("Distance", 0, Q("0.820611 mm")),
    Sketcher.Constraint("Distance", 3, Q("0.463371 mm")),
    Sketcher.Constraint("DistanceX", 2, 1, 2, 2, Q("1.263602 mm")),
    Sketcher.Constraint("DistanceX", -1, 1, 0, 2, Q("10.472609 mm")),
    Sketcher.Constraint("DistanceY", -1, 1, 0, 2, Q("7.96413 mm")),
])
pocket8 = body.newObject("PartDesign::Pocket", "Pocket007")
pocket8.Profile = sketch9
pocket8.setExpression("Length", "Params.pocket8_length")

sketch10 = body.newObject("Sketcher::SketchObject", "Sketch009")
sketch10.AttachmentSupport = (doc.getObject("XZ_Plane"), [""])
sketch10.MapMode = "FlatFace"
sketch10.AttachmentOffset = App.Placement(V(0, 0, 0.25 * 25.4), App.Rotation())
sketch10.addGeometry([
    Part.LineSegment(V(13.245, 2.729, 0), V(13.245, 0, 0)),
    Part.LineSegment(V(13.245, 0, 0), V(13.292, 0, 0)),
    Part.LineSegment(V(13.292, 0, 0), V(13.292, 2.729, 0)),
    Part.LineSegment(V(13.292, 2.729, 0), V(13.245, 2.729, 0)),
], False)
sketch10.addConstraint([
    Sketcher.Constraint("Coincident", 0, 2, 1, 1),
    Sketcher.Constraint("Coincident", 1, 2, 2, 1),
    Sketcher.Constraint("Coincident", 2, 2, 3, 1),
    Sketcher.Constraint("Coincident", 3, 2, 0, 1),
    Sketcher.Constraint("Vertical", 0),
    Sketcher.Constraint("Horizontal", 1),
    Sketcher.Constraint("Vertical", 2),
    Sketcher.Constraint("Horizontal", 3),
    Sketcher.Constraint("PointOnObject", 0, 2, -1),
    Sketcher.Constraint("DistanceX", 1, 1, 1, 2, Q("0.046802 mm")),
    Sketcher.Constraint("DistanceY", 0, 2, 0, 1, Q("2.728625 mm")),
    Sketcher.Constraint("DistanceX", -1, 1, 0, 2, Q("13.24535 mm")),
])
pocket9 = body.newObject("PartDesign::Pocket", "Pocket008")
pocket9.Profile = sketch10
pocket9.setExpression("Length", "Params.pocket9_length")

doc.recompute()
